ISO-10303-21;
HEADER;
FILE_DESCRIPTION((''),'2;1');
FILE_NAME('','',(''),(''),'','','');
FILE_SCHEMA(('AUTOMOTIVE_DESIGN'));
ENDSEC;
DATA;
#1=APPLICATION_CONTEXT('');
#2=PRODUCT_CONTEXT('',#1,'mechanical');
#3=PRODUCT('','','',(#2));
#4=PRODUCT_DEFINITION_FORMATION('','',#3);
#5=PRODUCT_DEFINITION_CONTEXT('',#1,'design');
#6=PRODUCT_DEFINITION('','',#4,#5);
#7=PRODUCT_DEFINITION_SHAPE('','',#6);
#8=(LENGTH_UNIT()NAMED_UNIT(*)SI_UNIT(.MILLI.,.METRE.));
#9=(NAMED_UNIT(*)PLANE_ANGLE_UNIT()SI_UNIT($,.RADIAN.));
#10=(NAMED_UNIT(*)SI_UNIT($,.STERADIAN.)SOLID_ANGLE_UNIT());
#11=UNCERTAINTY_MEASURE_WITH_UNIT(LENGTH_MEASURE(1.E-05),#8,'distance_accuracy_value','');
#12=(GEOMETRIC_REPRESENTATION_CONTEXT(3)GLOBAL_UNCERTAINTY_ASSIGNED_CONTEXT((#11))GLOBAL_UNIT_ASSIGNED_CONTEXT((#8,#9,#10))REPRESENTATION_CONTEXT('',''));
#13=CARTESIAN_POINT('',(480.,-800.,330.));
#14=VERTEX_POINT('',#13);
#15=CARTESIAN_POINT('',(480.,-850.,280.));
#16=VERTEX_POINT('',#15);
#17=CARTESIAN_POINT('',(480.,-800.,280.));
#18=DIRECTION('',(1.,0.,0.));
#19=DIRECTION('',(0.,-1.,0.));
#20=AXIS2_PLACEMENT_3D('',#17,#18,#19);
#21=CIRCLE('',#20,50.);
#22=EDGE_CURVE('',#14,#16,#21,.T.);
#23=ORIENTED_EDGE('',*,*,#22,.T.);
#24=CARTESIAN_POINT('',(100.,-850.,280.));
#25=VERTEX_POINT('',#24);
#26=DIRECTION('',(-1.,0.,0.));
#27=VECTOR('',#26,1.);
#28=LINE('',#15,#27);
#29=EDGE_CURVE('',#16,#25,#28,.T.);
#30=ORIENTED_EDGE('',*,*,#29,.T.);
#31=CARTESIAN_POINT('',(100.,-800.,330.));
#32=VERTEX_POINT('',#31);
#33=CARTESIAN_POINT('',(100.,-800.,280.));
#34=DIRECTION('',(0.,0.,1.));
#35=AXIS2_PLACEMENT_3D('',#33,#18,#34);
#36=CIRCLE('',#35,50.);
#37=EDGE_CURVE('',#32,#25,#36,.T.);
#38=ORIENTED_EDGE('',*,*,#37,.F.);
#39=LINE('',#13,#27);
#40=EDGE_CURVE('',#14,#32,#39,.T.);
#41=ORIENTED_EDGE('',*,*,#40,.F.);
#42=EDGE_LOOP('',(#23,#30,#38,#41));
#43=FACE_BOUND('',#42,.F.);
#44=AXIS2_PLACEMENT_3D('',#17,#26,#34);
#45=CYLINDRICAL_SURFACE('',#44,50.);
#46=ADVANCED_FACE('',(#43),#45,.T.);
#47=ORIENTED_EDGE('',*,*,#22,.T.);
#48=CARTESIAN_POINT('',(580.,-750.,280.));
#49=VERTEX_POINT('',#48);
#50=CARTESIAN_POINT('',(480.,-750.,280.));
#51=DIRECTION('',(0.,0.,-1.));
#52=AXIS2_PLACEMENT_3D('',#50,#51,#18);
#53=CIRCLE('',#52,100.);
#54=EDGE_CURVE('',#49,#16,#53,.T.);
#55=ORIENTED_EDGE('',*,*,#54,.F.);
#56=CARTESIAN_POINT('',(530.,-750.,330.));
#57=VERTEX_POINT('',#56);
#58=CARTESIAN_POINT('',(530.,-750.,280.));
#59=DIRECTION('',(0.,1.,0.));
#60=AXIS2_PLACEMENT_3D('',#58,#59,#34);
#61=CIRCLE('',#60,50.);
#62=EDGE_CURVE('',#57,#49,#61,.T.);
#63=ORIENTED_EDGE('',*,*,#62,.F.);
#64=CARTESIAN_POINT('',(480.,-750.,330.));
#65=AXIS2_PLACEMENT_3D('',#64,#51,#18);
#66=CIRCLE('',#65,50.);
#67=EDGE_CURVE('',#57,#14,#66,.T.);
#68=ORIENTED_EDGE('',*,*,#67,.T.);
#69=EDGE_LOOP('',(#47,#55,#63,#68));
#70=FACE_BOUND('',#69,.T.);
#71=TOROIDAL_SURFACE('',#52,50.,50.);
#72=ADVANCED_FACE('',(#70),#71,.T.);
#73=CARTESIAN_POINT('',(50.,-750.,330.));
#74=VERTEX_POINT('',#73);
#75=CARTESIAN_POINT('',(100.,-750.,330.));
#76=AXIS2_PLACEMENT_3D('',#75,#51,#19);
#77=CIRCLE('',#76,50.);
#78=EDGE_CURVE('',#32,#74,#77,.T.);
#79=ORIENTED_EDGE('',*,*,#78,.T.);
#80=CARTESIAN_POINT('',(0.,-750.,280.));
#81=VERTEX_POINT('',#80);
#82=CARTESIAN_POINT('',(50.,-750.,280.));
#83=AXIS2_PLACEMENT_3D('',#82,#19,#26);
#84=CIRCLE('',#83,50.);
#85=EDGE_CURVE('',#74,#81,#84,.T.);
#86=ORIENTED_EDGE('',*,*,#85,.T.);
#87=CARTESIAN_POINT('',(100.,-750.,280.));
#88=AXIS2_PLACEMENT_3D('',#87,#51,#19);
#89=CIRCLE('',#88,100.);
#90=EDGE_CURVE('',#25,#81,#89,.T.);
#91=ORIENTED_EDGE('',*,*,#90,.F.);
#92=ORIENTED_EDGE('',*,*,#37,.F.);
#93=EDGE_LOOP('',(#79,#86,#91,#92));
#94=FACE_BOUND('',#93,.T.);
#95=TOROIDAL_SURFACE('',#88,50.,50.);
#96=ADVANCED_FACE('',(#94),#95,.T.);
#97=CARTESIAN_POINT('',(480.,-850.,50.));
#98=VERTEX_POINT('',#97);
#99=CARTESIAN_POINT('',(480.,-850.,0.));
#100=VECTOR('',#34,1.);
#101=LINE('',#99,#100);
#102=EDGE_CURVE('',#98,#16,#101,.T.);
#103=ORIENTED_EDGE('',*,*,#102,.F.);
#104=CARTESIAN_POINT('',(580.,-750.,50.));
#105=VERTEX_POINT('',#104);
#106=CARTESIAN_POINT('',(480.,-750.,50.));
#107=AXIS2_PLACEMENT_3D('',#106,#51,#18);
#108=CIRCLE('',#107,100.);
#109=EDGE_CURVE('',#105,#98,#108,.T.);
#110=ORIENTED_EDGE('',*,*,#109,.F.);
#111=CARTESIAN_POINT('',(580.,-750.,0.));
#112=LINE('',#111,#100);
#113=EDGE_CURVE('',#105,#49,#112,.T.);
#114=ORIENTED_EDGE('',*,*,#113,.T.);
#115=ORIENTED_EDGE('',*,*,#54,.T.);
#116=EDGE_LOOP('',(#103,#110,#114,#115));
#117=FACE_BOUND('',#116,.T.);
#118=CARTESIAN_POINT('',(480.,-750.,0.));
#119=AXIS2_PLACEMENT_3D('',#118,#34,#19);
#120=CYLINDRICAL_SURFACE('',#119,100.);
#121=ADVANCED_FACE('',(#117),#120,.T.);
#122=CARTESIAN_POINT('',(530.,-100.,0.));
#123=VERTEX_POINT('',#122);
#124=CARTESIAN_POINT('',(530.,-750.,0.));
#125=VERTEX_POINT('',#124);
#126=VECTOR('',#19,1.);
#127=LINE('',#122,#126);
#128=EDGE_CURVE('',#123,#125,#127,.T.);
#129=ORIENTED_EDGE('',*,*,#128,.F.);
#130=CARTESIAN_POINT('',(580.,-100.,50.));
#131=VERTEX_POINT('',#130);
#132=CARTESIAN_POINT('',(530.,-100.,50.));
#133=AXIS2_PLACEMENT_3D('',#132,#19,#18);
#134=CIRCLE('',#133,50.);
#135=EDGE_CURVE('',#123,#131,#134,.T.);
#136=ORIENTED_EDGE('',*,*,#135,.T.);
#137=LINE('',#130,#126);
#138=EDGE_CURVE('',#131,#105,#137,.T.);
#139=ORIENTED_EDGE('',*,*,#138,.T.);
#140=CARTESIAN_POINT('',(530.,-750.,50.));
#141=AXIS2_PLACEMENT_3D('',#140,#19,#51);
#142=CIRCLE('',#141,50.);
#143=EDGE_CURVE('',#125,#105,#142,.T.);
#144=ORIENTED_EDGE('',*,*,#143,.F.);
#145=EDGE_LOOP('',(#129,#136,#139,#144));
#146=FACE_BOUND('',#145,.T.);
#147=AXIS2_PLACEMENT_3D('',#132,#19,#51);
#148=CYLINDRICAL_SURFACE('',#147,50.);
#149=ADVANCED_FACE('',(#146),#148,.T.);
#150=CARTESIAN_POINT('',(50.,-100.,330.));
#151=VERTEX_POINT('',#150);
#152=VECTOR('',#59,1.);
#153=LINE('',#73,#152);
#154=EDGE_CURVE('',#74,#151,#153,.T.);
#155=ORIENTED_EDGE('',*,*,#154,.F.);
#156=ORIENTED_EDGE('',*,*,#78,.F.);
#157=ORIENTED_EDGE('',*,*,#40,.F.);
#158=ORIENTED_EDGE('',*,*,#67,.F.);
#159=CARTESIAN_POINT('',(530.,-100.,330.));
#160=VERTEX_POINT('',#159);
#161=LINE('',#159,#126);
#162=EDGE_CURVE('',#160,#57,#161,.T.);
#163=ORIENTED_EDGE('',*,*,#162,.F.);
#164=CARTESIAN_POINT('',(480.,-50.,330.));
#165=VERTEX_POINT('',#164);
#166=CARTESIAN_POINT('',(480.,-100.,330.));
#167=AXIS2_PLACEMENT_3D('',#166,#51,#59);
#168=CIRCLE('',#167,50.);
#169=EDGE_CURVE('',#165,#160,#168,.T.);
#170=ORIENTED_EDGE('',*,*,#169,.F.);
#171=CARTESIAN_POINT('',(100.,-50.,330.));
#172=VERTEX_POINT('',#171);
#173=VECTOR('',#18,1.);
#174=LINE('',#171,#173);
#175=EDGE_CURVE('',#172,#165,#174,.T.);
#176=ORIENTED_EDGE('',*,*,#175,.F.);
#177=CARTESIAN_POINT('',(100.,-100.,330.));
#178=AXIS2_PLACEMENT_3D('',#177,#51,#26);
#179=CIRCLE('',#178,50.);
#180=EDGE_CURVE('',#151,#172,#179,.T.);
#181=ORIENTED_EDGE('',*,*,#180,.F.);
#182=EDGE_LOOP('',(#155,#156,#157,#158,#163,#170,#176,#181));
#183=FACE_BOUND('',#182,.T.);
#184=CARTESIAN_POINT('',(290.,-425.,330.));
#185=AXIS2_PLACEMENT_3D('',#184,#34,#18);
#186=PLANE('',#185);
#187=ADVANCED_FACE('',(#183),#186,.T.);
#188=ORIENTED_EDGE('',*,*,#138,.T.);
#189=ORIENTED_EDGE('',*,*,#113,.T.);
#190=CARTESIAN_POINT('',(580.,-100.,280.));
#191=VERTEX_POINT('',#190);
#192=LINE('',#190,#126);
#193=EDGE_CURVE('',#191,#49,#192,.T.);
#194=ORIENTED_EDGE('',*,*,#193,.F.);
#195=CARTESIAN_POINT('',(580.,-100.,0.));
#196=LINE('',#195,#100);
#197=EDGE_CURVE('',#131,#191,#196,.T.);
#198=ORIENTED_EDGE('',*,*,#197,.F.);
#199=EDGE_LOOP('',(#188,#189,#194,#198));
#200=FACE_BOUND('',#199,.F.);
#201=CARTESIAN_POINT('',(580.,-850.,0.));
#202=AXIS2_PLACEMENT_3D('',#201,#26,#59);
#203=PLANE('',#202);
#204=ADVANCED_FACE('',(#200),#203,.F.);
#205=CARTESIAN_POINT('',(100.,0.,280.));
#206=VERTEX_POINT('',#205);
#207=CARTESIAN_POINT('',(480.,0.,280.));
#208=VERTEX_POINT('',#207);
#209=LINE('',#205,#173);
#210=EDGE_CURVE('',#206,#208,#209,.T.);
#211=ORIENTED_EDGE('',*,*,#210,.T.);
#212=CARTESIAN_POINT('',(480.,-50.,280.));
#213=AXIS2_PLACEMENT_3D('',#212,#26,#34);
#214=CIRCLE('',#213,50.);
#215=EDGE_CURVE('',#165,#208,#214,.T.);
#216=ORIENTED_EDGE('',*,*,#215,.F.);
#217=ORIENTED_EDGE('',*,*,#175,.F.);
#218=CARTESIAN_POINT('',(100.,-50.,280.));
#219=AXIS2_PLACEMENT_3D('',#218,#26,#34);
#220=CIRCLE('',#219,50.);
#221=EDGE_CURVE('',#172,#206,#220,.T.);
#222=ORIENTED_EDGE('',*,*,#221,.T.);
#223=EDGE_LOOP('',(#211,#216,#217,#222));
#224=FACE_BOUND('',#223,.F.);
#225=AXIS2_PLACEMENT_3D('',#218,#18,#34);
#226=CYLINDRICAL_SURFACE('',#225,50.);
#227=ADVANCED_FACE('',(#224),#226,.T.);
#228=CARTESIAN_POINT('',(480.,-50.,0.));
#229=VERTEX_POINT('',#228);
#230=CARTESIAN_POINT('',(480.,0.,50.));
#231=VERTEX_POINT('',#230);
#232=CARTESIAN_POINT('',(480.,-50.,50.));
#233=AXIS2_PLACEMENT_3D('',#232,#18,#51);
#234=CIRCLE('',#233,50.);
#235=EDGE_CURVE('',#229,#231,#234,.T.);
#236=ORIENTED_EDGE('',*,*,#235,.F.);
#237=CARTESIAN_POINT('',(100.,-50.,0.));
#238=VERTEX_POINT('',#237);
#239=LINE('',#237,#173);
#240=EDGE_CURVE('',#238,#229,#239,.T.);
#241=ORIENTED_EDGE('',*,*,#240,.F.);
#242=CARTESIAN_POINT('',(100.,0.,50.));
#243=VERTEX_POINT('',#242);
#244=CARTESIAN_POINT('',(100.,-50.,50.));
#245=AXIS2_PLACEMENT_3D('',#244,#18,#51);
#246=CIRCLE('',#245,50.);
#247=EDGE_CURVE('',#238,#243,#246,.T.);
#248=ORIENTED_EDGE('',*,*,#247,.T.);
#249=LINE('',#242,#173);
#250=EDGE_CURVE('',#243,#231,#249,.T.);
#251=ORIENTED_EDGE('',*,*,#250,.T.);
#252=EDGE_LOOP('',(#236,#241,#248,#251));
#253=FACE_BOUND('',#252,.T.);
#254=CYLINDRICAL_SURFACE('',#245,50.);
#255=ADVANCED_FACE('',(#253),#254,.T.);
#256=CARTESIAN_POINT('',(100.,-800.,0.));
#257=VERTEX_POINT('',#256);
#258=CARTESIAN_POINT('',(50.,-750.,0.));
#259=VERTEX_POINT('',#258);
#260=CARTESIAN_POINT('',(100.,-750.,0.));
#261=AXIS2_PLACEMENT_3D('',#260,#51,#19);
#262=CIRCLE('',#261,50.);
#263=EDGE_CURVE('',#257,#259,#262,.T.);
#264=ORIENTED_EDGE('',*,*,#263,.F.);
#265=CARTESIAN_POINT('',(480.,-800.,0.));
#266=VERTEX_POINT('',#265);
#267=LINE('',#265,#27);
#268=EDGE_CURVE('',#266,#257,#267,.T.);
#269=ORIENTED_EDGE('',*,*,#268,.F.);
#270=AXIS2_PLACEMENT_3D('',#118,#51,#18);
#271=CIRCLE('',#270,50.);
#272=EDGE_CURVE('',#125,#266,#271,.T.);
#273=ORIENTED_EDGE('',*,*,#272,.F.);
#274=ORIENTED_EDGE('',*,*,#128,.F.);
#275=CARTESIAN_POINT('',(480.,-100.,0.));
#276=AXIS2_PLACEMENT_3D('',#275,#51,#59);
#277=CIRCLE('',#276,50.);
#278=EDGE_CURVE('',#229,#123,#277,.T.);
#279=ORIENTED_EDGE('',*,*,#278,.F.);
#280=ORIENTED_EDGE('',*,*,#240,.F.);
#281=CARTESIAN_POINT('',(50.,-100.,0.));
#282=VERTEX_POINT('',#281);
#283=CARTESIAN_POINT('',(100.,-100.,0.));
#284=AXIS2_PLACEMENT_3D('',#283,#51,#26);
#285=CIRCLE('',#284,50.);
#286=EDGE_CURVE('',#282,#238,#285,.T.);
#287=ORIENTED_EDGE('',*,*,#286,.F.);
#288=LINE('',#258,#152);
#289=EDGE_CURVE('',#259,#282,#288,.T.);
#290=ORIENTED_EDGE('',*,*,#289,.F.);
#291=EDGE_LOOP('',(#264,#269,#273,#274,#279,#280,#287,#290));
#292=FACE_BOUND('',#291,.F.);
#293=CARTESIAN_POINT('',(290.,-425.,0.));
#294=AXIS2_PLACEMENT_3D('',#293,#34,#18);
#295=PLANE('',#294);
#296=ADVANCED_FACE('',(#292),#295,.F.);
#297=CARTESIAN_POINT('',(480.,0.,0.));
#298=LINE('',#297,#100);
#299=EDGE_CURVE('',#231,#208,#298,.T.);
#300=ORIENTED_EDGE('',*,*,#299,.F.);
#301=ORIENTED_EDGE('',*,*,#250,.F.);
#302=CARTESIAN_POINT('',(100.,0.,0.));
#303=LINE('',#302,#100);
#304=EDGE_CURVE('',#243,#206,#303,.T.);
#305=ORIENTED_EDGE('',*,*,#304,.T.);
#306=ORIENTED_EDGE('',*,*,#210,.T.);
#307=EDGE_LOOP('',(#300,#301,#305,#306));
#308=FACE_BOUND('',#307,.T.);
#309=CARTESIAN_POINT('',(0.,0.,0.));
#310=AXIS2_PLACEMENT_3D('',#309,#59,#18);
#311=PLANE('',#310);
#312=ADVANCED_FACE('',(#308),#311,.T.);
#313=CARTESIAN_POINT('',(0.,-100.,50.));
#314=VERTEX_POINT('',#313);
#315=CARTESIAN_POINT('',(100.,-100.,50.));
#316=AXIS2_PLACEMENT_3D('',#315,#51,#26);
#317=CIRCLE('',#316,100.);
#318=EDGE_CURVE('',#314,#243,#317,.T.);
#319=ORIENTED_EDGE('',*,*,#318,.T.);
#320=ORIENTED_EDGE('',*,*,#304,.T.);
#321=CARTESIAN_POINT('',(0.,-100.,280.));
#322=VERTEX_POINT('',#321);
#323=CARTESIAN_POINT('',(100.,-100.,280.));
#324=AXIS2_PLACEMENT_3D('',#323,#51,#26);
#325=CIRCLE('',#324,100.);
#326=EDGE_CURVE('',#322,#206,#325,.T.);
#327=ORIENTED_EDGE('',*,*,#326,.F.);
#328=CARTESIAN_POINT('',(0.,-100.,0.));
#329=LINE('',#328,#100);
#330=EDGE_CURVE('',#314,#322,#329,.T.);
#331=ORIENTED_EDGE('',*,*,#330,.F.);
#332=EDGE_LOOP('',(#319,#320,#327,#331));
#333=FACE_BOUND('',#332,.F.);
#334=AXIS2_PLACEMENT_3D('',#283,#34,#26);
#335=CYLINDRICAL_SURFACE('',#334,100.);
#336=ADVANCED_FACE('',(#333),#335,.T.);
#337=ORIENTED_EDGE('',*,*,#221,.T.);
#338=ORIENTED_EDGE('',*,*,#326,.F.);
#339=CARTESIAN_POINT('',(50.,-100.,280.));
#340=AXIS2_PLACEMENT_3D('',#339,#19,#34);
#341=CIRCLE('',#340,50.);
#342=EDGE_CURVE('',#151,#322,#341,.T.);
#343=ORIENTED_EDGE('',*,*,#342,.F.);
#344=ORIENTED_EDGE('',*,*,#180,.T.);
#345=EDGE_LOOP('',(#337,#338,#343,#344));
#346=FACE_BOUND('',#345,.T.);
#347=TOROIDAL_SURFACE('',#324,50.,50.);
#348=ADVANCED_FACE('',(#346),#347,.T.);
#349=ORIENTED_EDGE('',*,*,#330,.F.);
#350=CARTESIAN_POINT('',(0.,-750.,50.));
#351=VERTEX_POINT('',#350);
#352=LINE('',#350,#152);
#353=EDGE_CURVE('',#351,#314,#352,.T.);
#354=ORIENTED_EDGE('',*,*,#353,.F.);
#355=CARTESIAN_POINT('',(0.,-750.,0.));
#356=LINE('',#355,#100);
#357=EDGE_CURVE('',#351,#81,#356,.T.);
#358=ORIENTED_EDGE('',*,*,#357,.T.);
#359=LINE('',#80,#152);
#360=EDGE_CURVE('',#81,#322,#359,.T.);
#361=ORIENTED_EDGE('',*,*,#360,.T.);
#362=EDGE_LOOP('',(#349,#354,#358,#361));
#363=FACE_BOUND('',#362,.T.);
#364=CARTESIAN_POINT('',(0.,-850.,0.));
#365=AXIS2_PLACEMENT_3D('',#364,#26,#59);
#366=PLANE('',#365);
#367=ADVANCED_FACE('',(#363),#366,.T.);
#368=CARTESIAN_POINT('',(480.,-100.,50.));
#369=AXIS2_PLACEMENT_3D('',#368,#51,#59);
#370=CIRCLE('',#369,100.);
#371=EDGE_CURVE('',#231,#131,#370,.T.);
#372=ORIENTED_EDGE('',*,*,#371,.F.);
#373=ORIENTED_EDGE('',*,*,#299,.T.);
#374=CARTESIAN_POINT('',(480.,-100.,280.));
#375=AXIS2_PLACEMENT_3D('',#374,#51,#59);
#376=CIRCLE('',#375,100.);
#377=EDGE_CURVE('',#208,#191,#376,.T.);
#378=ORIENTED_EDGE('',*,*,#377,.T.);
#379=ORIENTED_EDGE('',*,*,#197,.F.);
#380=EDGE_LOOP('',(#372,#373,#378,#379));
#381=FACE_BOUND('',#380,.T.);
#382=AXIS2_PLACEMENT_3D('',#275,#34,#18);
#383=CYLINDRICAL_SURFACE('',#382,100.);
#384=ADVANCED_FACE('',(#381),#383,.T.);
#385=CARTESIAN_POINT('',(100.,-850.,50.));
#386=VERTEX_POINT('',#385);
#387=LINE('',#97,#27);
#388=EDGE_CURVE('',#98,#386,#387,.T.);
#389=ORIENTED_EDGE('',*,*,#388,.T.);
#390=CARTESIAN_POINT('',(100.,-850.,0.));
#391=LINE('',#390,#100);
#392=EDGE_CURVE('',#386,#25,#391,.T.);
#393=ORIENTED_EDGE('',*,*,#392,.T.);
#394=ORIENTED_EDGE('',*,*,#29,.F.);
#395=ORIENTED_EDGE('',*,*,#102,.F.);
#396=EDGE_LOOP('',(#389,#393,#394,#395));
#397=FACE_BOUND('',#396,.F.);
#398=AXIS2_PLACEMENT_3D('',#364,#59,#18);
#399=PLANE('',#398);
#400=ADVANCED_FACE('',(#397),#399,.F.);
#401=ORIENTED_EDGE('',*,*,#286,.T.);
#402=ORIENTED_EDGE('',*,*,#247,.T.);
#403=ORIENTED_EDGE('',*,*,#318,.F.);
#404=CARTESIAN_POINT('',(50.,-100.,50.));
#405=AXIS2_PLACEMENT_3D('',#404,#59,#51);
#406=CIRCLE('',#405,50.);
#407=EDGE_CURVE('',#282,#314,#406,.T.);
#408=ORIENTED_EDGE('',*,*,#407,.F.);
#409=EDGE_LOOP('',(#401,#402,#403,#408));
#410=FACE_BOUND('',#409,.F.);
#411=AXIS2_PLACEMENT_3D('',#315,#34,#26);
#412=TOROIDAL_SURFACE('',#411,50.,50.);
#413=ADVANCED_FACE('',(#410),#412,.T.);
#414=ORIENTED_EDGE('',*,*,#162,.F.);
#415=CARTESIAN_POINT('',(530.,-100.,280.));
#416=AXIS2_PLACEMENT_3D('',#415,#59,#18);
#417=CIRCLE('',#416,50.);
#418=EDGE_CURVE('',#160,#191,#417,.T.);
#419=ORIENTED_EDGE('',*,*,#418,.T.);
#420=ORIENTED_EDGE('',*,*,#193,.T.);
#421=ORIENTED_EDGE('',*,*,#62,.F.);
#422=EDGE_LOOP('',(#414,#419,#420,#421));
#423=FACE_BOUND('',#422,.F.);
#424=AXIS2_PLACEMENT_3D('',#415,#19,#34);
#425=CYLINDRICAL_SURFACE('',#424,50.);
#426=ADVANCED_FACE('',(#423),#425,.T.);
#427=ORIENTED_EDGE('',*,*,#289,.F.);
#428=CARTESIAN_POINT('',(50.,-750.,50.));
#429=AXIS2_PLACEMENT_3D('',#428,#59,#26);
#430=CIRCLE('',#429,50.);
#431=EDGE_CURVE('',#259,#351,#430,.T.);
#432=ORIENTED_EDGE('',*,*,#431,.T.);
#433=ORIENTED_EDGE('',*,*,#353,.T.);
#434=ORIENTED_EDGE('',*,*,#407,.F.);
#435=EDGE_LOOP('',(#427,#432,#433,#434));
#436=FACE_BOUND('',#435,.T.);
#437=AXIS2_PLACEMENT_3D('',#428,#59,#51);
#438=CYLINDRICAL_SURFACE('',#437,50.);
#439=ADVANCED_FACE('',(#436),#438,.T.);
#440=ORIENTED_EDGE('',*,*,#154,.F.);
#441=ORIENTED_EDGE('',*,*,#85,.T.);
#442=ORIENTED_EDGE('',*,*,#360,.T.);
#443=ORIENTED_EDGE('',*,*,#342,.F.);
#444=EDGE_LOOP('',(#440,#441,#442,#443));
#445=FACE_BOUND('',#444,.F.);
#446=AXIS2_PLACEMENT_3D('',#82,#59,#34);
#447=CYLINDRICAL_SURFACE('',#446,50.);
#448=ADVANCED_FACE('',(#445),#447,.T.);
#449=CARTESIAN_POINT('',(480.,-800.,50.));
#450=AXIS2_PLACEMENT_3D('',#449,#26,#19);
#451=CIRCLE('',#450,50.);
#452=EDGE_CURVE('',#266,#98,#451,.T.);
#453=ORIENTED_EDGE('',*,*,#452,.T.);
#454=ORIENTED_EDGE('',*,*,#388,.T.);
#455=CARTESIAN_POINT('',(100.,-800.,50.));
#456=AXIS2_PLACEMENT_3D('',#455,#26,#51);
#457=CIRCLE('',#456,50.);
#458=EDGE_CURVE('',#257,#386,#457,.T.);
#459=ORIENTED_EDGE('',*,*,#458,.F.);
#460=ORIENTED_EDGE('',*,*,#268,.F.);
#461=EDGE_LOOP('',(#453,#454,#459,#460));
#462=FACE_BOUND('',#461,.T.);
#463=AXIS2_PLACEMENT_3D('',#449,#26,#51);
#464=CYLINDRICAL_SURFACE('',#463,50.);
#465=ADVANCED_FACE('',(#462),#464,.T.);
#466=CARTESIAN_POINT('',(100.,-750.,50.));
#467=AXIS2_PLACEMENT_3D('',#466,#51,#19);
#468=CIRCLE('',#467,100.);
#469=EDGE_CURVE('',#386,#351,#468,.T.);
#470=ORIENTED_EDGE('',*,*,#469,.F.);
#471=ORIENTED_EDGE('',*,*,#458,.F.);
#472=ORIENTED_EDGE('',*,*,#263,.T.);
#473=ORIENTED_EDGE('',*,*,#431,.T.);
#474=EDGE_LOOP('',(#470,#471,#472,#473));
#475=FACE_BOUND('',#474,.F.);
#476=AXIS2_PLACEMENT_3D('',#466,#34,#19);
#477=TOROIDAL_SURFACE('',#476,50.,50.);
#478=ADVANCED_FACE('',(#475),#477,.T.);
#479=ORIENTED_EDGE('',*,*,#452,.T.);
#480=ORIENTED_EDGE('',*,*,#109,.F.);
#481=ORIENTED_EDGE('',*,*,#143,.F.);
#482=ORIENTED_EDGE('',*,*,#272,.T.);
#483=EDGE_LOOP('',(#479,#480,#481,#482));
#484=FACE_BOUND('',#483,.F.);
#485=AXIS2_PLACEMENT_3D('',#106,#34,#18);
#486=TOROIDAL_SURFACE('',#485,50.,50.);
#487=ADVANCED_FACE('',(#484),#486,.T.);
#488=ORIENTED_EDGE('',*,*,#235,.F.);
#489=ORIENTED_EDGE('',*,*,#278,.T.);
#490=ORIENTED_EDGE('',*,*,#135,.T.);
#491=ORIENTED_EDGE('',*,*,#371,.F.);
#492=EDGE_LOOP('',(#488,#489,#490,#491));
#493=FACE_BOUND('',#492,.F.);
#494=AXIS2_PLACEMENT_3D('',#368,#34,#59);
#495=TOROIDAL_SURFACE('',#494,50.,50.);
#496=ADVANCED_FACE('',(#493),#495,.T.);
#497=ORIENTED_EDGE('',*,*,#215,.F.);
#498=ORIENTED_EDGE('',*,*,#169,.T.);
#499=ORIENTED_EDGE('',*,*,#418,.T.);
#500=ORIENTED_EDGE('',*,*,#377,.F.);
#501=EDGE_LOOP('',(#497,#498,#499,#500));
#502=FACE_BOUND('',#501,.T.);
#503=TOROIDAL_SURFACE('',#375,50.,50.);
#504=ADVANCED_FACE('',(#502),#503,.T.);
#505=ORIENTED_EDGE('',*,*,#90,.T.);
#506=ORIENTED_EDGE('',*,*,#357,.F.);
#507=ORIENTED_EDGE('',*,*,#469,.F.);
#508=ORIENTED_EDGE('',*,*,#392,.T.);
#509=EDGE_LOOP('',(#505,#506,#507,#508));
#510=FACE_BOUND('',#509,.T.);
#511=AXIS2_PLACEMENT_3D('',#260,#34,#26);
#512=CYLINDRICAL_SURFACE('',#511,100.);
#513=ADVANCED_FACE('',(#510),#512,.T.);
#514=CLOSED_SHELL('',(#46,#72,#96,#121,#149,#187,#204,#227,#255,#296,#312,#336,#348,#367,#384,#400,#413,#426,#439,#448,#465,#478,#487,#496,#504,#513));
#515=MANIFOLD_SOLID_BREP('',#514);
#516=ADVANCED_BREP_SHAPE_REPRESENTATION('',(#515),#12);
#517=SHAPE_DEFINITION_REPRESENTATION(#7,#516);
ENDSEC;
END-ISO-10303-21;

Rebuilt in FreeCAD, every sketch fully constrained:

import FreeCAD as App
import Part
import Sketcher
from FreeCAD import Vector


def edges_at(feature, points):
    """Names of the edges that pass closest to the given points."""
    edges = feature.Shape.Edges
    near = lambda p: min(range(len(edges)), key=lambda i: edges[i].distToShape(Part.Vertex(*p))[0])
    return sorted({f"Edge{near(p) + 1}" for p in points})


def add_polygon(sketch, points):
    """Adds a closed chain of lines whose ends are joined by coincident constraints."""
    first, n = sketch.GeometryCount, len(points)
    for a, b in zip(points, points[1:] + points[:1]):
        sketch.addGeometry(Part.LineSegment(App.Vector(*a, 0), App.Vector(*b, 0)), False)
    for i in range(n):
        sketch.addConstraint(Sketcher.Constraint("Coincident", first + i, 2, first + (i + 1) % n, 1))

doc = App.newDocument("Part")
body = doc.addObject("PartDesign::Body", "Body")

# Sketch on XY plane
sketch1 = body.newObject("Sketcher::SketchObject", "Sketch")
sketch1.AttachmentSupport = (doc.getObject("XY_Plane"), [""])
sketch1.MapMode = "FlatFace"
add_polygon(sketch1, [(0, 0), (0, -850), (580, -850), (580, 0)])  # lines 0-3
sketch1.addConstraint([
    Sketcher.Constraint("Vertical", 0),
    Sketcher.Constraint("Horizontal", 1),
    Sketcher.Constraint("Vertical", 2),
    Sketcher.Constraint("Horizontal", 3),
    Sketcher.Constraint("Coincident", 3, 2, -1, 1),
    Sketcher.Constraint("DistanceX", 1, 1, 1, 2, 580.0),
    Sketcher.Constraint("DistanceY", 0, 2, 0, 1, 850.0),
])
pad1 = body.newObject("PartDesign::Pad", "Pad")
pad1.Profile = sketch1
pad1.Length = 330
doc.recompute()

fillet = body.newObject("PartDesign::Fillet", "Fillet")
fillet.Base = (pad1, edges_at(pad1, [
    (580, -850, 165),
    (580, 0, 165),
    (0, -850, 165),
    (0, 0, 165),
]))
fillet.Radius = 100
doc.recompute()

fillet2 = body.newObject("PartDesign::Fillet", "Fillet001")
fillet2.Base = (fillet, edges_at(fillet, [
    (290, 0, 330),
    (550.711, -29.289, 330),
    (29.289, -29.289, 330),
    (580, -425, 330),
    (0, -425, 330),
    (550.711, -820.711, 330),
    (29.289, -820.711, 330),
    (290, -850, 330),
    (290, 0, 0),
    (550.711, -29.289, 0),
    (29.289, -29.289, 0),
    (580, -425, 0),
    (0, -425, 0),
    (550.711, -820.711, 0),
    (29.289, -820.711, 0),
    (290, -850, 0),
]))
fillet2.Radius = 50

doc.recompute()
